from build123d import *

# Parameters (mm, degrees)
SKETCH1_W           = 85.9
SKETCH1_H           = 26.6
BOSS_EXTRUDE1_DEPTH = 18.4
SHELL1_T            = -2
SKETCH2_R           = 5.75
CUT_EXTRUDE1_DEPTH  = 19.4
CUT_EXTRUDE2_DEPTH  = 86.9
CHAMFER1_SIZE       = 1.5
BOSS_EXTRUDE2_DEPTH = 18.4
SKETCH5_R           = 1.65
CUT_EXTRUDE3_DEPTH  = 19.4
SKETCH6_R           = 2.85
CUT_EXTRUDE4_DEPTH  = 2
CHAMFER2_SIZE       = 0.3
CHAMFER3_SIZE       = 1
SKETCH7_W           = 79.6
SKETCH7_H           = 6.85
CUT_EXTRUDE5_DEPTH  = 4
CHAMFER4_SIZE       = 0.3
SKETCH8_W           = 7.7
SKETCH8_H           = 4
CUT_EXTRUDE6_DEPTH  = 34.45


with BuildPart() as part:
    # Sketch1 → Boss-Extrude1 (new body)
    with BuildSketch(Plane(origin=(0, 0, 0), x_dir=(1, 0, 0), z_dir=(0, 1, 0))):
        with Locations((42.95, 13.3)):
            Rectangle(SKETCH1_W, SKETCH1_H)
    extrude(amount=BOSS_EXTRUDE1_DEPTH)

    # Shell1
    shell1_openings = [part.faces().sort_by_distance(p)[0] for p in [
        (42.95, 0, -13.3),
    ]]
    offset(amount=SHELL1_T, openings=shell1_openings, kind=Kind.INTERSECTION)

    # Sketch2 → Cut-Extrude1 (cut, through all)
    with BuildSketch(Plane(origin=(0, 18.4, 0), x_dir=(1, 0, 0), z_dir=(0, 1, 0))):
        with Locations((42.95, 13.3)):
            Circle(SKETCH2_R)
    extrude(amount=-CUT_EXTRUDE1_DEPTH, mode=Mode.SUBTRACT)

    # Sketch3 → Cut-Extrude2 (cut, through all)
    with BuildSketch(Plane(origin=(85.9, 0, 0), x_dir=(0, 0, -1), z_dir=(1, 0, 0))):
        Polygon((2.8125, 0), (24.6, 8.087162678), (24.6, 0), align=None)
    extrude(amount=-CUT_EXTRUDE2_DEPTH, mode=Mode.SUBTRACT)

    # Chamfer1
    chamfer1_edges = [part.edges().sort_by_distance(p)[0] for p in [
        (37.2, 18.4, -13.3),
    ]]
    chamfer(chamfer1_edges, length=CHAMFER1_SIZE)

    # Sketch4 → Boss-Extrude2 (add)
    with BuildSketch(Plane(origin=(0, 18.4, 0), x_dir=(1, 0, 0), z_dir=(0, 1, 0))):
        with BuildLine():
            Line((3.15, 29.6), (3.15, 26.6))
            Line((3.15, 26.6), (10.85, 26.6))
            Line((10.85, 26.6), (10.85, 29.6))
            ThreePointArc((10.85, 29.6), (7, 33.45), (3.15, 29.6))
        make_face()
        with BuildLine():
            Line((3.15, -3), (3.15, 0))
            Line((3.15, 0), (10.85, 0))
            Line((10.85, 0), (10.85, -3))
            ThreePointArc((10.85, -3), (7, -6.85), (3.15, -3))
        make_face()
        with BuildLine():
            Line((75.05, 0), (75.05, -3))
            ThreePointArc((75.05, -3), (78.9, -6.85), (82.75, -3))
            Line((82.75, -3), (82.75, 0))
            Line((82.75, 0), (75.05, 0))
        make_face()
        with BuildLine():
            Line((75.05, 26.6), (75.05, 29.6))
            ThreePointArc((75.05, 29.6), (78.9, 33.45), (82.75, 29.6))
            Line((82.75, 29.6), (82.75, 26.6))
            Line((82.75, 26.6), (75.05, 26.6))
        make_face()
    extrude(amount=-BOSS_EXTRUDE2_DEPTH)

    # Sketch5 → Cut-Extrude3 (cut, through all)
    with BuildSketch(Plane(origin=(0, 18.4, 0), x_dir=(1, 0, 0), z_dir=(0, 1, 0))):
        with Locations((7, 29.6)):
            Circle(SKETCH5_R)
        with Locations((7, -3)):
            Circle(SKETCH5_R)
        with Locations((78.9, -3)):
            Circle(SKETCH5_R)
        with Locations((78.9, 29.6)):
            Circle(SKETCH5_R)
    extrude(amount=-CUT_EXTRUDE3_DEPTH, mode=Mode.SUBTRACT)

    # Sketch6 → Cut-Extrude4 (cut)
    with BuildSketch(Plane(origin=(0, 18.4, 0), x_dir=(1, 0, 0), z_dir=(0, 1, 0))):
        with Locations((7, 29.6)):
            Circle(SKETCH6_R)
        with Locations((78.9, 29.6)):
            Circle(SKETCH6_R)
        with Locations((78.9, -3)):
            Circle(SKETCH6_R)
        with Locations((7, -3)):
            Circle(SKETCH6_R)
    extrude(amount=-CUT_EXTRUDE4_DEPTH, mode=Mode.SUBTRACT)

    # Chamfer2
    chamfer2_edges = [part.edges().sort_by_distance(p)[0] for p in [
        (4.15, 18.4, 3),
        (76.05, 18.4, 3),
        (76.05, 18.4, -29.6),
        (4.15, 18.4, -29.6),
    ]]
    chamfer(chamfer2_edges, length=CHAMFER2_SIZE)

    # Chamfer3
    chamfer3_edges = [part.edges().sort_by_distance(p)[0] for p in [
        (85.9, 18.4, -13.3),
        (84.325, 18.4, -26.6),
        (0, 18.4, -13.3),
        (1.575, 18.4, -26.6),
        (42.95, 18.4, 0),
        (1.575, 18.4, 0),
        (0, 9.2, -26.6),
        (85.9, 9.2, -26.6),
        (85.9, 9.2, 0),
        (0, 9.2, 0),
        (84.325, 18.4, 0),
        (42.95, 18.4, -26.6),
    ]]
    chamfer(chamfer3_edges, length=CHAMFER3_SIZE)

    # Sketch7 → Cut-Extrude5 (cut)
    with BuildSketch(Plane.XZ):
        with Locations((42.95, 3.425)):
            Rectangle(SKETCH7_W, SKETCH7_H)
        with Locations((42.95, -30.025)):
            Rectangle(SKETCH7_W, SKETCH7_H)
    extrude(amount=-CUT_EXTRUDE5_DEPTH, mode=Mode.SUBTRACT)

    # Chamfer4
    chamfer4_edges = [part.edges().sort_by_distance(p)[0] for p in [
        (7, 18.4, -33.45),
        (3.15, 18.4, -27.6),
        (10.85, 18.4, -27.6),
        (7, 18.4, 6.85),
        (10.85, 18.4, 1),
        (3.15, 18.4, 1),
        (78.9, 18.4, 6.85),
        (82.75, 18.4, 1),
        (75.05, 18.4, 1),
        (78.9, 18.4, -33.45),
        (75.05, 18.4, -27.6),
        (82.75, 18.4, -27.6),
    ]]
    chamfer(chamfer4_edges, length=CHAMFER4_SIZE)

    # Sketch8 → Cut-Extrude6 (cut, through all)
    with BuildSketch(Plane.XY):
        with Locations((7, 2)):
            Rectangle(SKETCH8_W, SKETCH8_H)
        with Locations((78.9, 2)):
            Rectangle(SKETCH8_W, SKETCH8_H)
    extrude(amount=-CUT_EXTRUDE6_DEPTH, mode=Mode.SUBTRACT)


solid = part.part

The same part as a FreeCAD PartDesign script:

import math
import FreeCAD as App
import Part
import Sketcher
from FreeCAD import Vector


def edges_at(feature, points):
    """Names of the edges that pass closest to the given points."""
    edges = feature.Shape.Edges
    near = lambda p: min(range(len(edges)), key=lambda i: edges[i].distToShape(Part.Vertex(*p))[0])
    return sorted({f"Edge{near(p) + 1}" for p in points})


def faces_at(feature, points):
    """Names of the faces that lie closest to the given points."""
    faces = feature.Shape.Faces
    near = lambda p: min(range(len(faces)), key=lambda i: faces[i].distToShape(Part.Vertex(*p))[0])
    return sorted({f"Face{near(p) + 1}" for p in points})


def add_polygon(sketch, points):
    """Adds a closed chain of lines whose ends are joined by coincident constraints."""
    first, n = sketch.GeometryCount, len(points)
    for a, b in zip(points, points[1:] + points[:1]):
        sketch.addGeometry(Part.LineSegment(App.Vector(*a, 0), App.Vector(*b, 0)), False)
    for i in range(n):
        sketch.addConstraint(Sketcher.Constraint("Coincident", first + i, 2, first + (i + 1) % n, 1))

doc = App.newDocument("Part")
body = doc.addObject("PartDesign::Body", "Body")

sketch1 = body.newObject("Sketcher::SketchObject", "Sketch")
sketch1.AttachmentSupport = (doc.getObject("XZ_Plane"), [""])
sketch1.MapMode = "FlatFace"
add_polygon(sketch1, [(0, -27), (0, 0), (86, 0), (86, -27)])
sketch1.addConstraint(Sketcher.Constraint("Vertical", 0))
sketch1.addConstraint(Sketcher.Constraint("Horizontal", 1))
sketch1.addConstraint(Sketcher.Constraint("Vertical", 2))
sketch1.addConstraint(Sketcher.Constraint("Horizontal", 3))
sketch1.addConstraint(Sketcher.Constraint("Coincident", 0, 2, -1, 1))
sketch1.addConstraint(Sketcher.Constraint("DistanceX", 1, 1, 1, 2, 85.9))
sketch1.addConstraint(Sketcher.Constraint("DistanceY", 0, 1, 0, 2, 26.6))
pad1 = body.newObject("PartDesign::Pad", "Pad")
pad1.Profile = sketch1
pad1.Length = 18.4
pad1.Reversed = True
doc.recompute()

thickness = body.newObject("PartDesign::Thickness", "Thickness")
thickness.Base = (pad1, faces_at(pad1, [(42.95, 0, -13.3)]))
thickness.Value = 2
thickness.Reversed = True
thickness.Join = "Intersection"

sketch2 = body.newObject("Sketcher::SketchObject", "Sketch001")
sketch2.AttachmentSupport = (doc.getObject("XZ_Plane"), [""])
sketch2.MapMode = "FlatFace"
sketch2.AttachmentOffset = App.Placement(Vector(0, 0, -18.4), App.Rotation())
sketch2.addGeometry(Part.Circle(Vector(43, -13, 0), Vector(0, 0, 1), 6), False)
sketch2.addConstraint(Sketcher.Constraint("Diameter", 0, 11.5))
sketch2.addConstraint(Sketcher.Constraint("DistanceY", 0, 3, -1, 1, 13.3))
sketch2.addConstraint(Sketcher.Constraint("DistanceX", -1, 1, 0, 3, 42.95))
pocket1 = body.newObject("PartDesign::Pocket", "Pocket")
pocket1.Profile = sketch2
pocket1.Type = "ThroughAll"
pocket1.Reversed = True

sketch3 = body.newObject("Sketcher::SketchObject", "Sketch002")
sketch3.AttachmentSupport = (doc.getObject("YZ_Plane"), [""])
sketch3.MapMode = "FlatFace"
sketch3.AttachmentOffset = App.Placement(Vector(0, 0, 85.9), App.Rotation())
add_polygon(sketch3, [(8, -25), (0, -3), (0, -25)])
sketch3.addConstraint(Sketcher.Constraint("Vertical", 1))
sketch3.addConstraint(Sketcher.Constraint("Horizontal", 2))
sketch3.addConstraint(Sketcher.Constraint("PointOnObject", 0, 2, -2))
sketch3.addConstraint(Sketcher.Constraint("DistanceY", 1, 2, -1, 1, 24.6))
sketch3.addConstraint(Sketcher.Constraint("DistanceY", 1, 2, 1, 1, 21.7875))
sketch3.addConstraint(Sketcher.Constraint("DistanceX", 2, 1, 2, 2, 8.087163))
pocket2 = body.newObject("PartDesign::Pocket", "Pocket001")
pocket2.Profile = sketch3
pocket2.Type = "ThroughAll"
doc.recompute()

chamfer = body.newObject("PartDesign::Chamfer", "Chamfer")
chamfer.Base = (pocket2, edges_at(pocket2, [(37.2, 18.4, -13.3)]))
chamfer.Size = 1.5

sketch4 = body.newObject("Sketcher::SketchObject", "Sketch003")
sketch4.AttachmentSupport = (doc.getObject("XZ_Plane"), [""])
sketch4.MapMode = "FlatFace"
sketch4.AttachmentOffset = App.Placement(Vector(0, 0, -18.4), App.Rotation())
sketch4.addGeometry(Part.LineSegment(Vector(3.1, -29.6, 0), Vector(3.1, -26.6, 0)), False)
sketch4.addGeometry(Part.LineSegment(Vector(3.1, -26.6, 0), Vector(10.8, -26.6, 0)), False)
sketch4.addGeometry(Part.LineSegment(Vector(10.8, -26.6, 0), Vector(10.8, -29.6, 0)), False)
sketch4.addGeometry(Part.ArcOfCircle(Part.Circle(Vector(7, -29.6, 0), Vector(0, 0, 1), 3.9), math.radians(180), math.radians(360)), False)
sketch4.addGeometry(Part.LineSegment(Vector(3.1, 0, 0), Vector(3.1, 3, 0)), False)
sketch4.addGeometry(Part.ArcOfCircle(Part.Circle(Vector(7, 3, 0), Vector(0, 0, 1), 3.9), math.radians(0), math.radians(180)), False)
sketch4.addGeometry(Part.LineSegment(Vector(10.8, 3, 0), Vector(10.8, 0, 0)), False)
sketch4.addGeometry(Part.LineSegment(Vector(10.8, 0, 0), Vector(3.1, 0, 0)), False)
sketch4.addGeometry(Part.LineSegment(Vector(75, 0, 0), Vector(75, 3, 0)), False)
sketch4.addGeometry(Part.ArcOfCircle(Part.Circle(Vector(78.9, 3, 0), Vector(0, 0, 1), 3.9), math.radians(0), math.radians(180)), False)
sketch4.addGeometry(Part.LineSegment(Vector(82.8, 3, 0), Vector(82.8, 0, 0)), False)
sketch4.addGeometry(Part.LineSegment(Vector(82.8, 0, 0), Vector(75, 0, 0)), False)
sketch4.addGeometry(Part.LineSegment(Vector(75, -29.6, 0), Vector(75, -26.6, 0)), False)
sketch4.addGeometry(Part.LineSegment(Vector(75, -26.6, 0), Vector(82.8, -26.6, 0)), False)
sketch4.addGeometry(Part.LineSegment(Vector(82.8, -26.6, 0), Vector(82.8, -29.6, 0)), False)
sketch4.addGeometry(Part.ArcOfCircle(Part.Circle(Vector(78.9, -29.6, 0), Vector(0, 0, 1), 3.9), math.radians(180), math.radians(360)), False)
sketch4.addConstraint(Sketcher.Constraint("Coincident", 0, 2, 1, 1))
sketch4.addConstraint(Sketcher.Constraint("Coincident", 1, 2, 2, 1))
sketch4.addConstraint(Sketcher.Constraint("Tangent", 2, 2, 3, 2))
sketch4.addConstraint(Sketcher.Constraint("Tangent", 3, 1, 0, 1))
sketch4.addConstraint(Sketcher.Constraint("Tangent", 4, 2, 5, 2))
sketch4.addConstraint(Sketcher.Constraint("Tangent", 5, 1, 6, 1))
sketch4.addConstraint(Sketcher.Constraint("Coincident", 6, 2, 7, 1))
sketch4.addConstraint(Sketcher.Constraint("Coincident", 7, 2, 4, 1))
sketch4.addConstraint(Sketcher.Constraint("Tangent", 8, 2, 9, 2))
sketch4.addConstraint(Sketcher.Constraint("Tangent", 9, 1, 10, 1))
sketch4.addConstraint(Sketcher.Constraint("Coincident", 10, 2, 11, 1))
sketch4.addConstraint(Sketcher.Constraint("Coincident", 11, 2, 8, 1))
sketch4.addConstraint(Sketcher.Constraint("Coincident", 12, 2, 13, 1))
sketch4.addConstraint(Sketcher.Constraint("Coincident", 13, 2, 14, 1))
sketch4.addConstraint(Sketcher.Constraint("Tangent", 14, 2, 15, 2))
sketch4.addConstraint(Sketcher.Constraint("Tangent", 15, 1, 12, 1))
sketch4.addConstraint(Sketcher.Constraint("Vertical", 0))
sketch4.addConstraint(Sketcher.Constraint("Horizontal", 1))
sketch4.addConstraint(Sketcher.Constraint("Vertical", 2))
sketch4.addConstraint(Sketcher.Constraint("Vertical", 4))
sketch4.addConstraint(Sketcher.Constraint("Vertical", 6))
sketch4.addConstraint(Sketcher.Constraint("Horizontal", 7))
sketch4.addConstraint(Sketcher.Constraint("Vertical", 8))
sketch4.addConstraint(Sketcher.Constraint("Vertical", 10))
sketch4.addConstraint(Sketcher.Constraint("Horizontal", 11))
sketch4.addConstraint(Sketcher.Constraint("Vertical", 12))
sketch4.addConstraint(Sketcher.Constraint("Horizontal", 13))
sketch4.addConstraint(Sketcher.Constraint("Vertical", 14))
sketch4.addConstraint(Sketcher.Constraint("Equal", 3, 5))
sketch4.addConstraint(Sketcher.Constraint("Equal", 5, 9))
sketch4.addConstraint(Sketcher.Constraint("Equal", 9, 15))
sketch4.addConstraint(Sketcher.Constraint("PointOnObject", 6, 2, -1))
sketch4.addConstraint(Sketcher.Constraint("PointOnObject", 10, 2, -1))
sketch4.addConstraint(Sketcher.Constraint("Horizontal", 5, 3, 9, 3))
sketch4.addConstraint(Sketcher.Constraint("Horizontal", 3, 3, 15, 3))
sketch4.addConstraint(Sketcher.Constraint("Horizontal", 1, 2, 12, 2))
sketch4.addConstraint(Sketcher.Constraint("Vertical", 3, 3, 5, 3))
sketch4.addConstraint(Sketcher.Constraint("Vertical", 9, 3, 15, 3))
sketch4.addConstraint(Sketcher.Constraint("Equal", 2, 4))
sketch4.addConstraint(Sketcher.Constraint("DistanceY", 0, 1, 0, 2, 3.0))
sketch4.addConstraint(Sketcher.Constraint("Radius", 3, 3.85))
sketch4.addConstraint(Sketcher.Constraint("DistanceX", -1, 1, 3, 3, 7.0))
sketch4.addConstraint(Sketcher.Constraint("DistanceY", 3, 3, -1, 1, 29.6))
sketch4.addConstraint(Sketcher.Constraint("DistanceX", -1, 1, 9, 3, 78.9))
pad2 = body.newObject("PartDesign::Pad", "Pad001")
pad2.Profile = sketch4
pad2.Length = 18.4

sketch5 = body.newObject("Sketcher::SketchObject", "Sketch004")
sketch5.AttachmentSupport = (doc.getObject("XZ_Plane"), [""])
sketch5.MapMode = "FlatFace"
sketch5.AttachmentOffset = App.Placement(Vector(0, 0, -18.4), App.Rotation())
sketch5.addGeometry(Part.Circle(Vector(7, -29.6, 0), Vector(0, 0, 1), 1.6), False)
sketch5.addGeometry(Part.Circle(Vector(7, 3, 0), Vector(0, 0, 1), 1.6), False)
sketch5.addGeometry(Part.Circle(Vector(78.9, 3, 0), Vector(0, 0, 1), 1.6), False)
sketch5.addGeometry(Part.Circle(Vector(78.9, -29.6, 0), Vector(0, 0, 1), 1.6), False)
sketch5.addConstraint(Sketcher.Constraint("Equal", 0, 1))
sketch5.addConstraint(Sketcher.Constraint("Equal", 1, 2))
sketch5.addConstraint(Sketcher.Constraint("Equal", 2, 3))
sketch5.addConstraint(Sketcher.Constraint("Horizontal", 1, 3, 2, 3))
sketch5.addConstraint(Sketcher.Constraint("Horizontal", 0, 3, 3, 3))
sketch5.addConstraint(Sketcher.Constraint("Vertical", 0, 3, 1, 3))
sketch5.addConstraint(Sketcher.Constraint("Vertical", 2, 3, 3, 3))
sketch5.addConstraint(Sketcher.Constraint("Diameter", 0, 3.3))
sketch5.addConstraint(Sketcher.Constraint("DistanceX", -1, 1, 0, 3, 7.0))
sketch5.addConstraint(Sketcher.Constraint("DistanceY", -1, 1, 1, 3, 3.0))
sketch5.addConstraint(Sketcher.Constraint("DistanceY", 0, 3, -1, 1, 29.6))
sketch5.addConstraint(Sketcher.Constraint("DistanceX", -1, 1, 2, 3, 78.9))
pocket3 = body.newObject("PartDesign::Pocket", "Pocket002")
pocket3.Profile = sketch5
pocket3.Type = "ThroughAll"
pocket3.Reversed = True

sketch6 = body.newObject("Sketcher::SketchObject", "Sketch005")
sketch6.AttachmentSupport = (doc.getObject("XZ_Plane"), [""])
sketch6.MapMode = "FlatFace"
sketch6.AttachmentOffset = App.Placement(Vector(0, 0, -18.4), App.Rotation())
sketch6.addGeometry(Part.Circle(Vector(7, -29.6, 0), Vector(0, 0, 1), 2.9), False)
sketch6.addGeometry(Part.Circle(Vector(78.9, -29.6, 0), Vector(0, 0, 1), 2.9), False)
sketch6.addGeometry(Part.Circle(Vector(78.9, 3, 0), Vector(0, 0, 1), 2.9), False)
sketch6.addGeometry(Part.Circle(Vector(7, 3, 0), Vector(0, 0, 1), 2.9), False)
sketch6.addConstraint(Sketcher.Constraint("Equal", 0, 1))
sketch6.addConstraint(Sketcher.Constraint("Equal", 1, 2))
sketch6.addConstraint(Sketcher.Constraint("Equal", 2, 3))
sketch6.addConstraint(Sketcher.Constraint("Horizontal", 0, 3, 1, 3))
sketch6.addConstraint(Sketcher.Constraint("Horizontal", 2, 3, 3, 3))
sketch6.addConstraint(Sketcher.Constraint("Vertical", 1, 3, 2, 3))
sketch6.addConstraint(Sketcher.Constraint("Vertical", 0, 3, 3, 3))
sketch6.addConstraint(Sketcher.Constraint("Diameter", 0, 5.7))
sketch6.addConstraint(Sketcher.Constraint("DistanceX", -1, 1, 0, 3, 7.0))
sketch6.addConstraint(Sketcher.Constraint("DistanceY", -1, 1, 2, 3, 3.0))
sketch6.addConstraint(Sketcher.Constraint("DistanceY", 0, 3, -1, 1, 29.6))
sketch6.addConstraint(Sketcher.Constraint("DistanceX", -1, 1, 1, 3, 78.9))
pocket4 = body.newObject("PartDesign::Pocket", "Pocket003")
pocket4.Profile = sketch6
pocket4.Length = 2
pocket4.Reversed = True
doc.recompute()

chamfer2 = body.newObject("PartDesign::Chamfer", "Chamfer001")
chamfer2.Base = (pocket4, edges_at(pocket4, [
    (4.15, 18.4, 3),
    (76.05, 18.4, 3),
    (76.05, 18.4, -29.6),
    (4.15, 18.4, -29.6),
]))
chamfer2.Size = 0.3
doc.recompute()

chamfer3 = body.newObject("PartDesign::Chamfer", "Chamfer002")
chamfer3.Base = (chamfer2, edges_at(chamfer2, [
    (85.9, 18.4, -13.3),
    (84.325, 18.4, -26.6),
    (0, 18.4, -13.3),
    (1.575, 18.4, -26.6),
    (42.95, 18.4, 0),
    (1.575, 18.4, 0),
    (0, 9.2, -26.6),
    (85.9, 9.2, -26.6),
    (85.9, 9.2, 0),
    (0, 9.2, 0),
    (84.325, 18.4, 0),
    (42.95, 18.4, -26.6),
]))
chamfer3.Size = 1

sketch7 = body.newObject("Sketcher::SketchObject", "Sketch006")
sketch7.AttachmentSupport = (doc.getObject("XZ_Plane"), [""])
sketch7.MapMode = "FlatFace"
add_polygon(sketch7, [(3, 7), (3, 0), (83, 0), (83, 7)])
add_polygon(sketch7, [(3, -27), (3, -33), (83, -33), (83, -27)])
sketch7.addConstraint(Sketcher.Constraint("Vertical", 0))
sketch7.addConstraint(Sketcher.Constraint("Horizontal", 1))
sketch7.addConstraint(Sketcher.Constraint("Vertical", 2))
sketch7.addConstraint(Sketcher.Constraint("Horizontal", 3))
sketch7.addConstraint(Sketcher.Constraint("Vertical", 4))
sketch7.addConstraint(Sketcher.Constraint("Horizontal", 5))
sketch7.addConstraint(Sketcher.Constraint("Vertical", 6))
sketch7.addConstraint(Sketcher.Constraint("Horizontal", 7))
sketch7.addConstraint(Sketcher.Constraint("PointOnObject", 0, 2, -1))
sketch7.addConstraint(Sketcher.Constraint("Vertical", 3, 2, 4, 2))
sketch7.addConstraint(Sketcher.Constraint("Vertical", 2, 2, 5, 2))
sketch7.addConstraint(Sketcher.Constraint("Equal", 2, 4))
sketch7.addConstraint(Sketcher.Constraint("DistanceX", 1, 1, 1, 2, 79.6))
sketch7.addConstraint(Sketcher.Constraint("DistanceY", 0, 2, 0, 1, 6.85))
sketch7.addConstraint(Sketcher.Constraint("DistanceY", 6, 2, -1, 1, 26.6))
sketch7.addConstraint(Sketcher.Constraint("DistanceX", -1, 1, 0, 2, 3.15))
pocket5 = body.newObject("PartDesign::Pocket", "Pocket004")
pocket5.Profile = sketch7
pocket5.Length = 4
doc.recompute()

chamfer4 = body.newObject("PartDesign::Chamfer", "Chamfer003")
chamfer4.Base = (pocket5, edges_at(pocket5, [
    (7, 18.4, -33.45),
    (3.15, 18.4, -27.6),
    (10.85, 18.4, -27.6),
    (7, 18.4, 6.85),
    (10.85, 18.4, 1),
    (3.15, 18.4, 1),
    (78.9, 18.4, 6.85),
    (82.75, 18.4, 1),
    (75.05, 18.4, 1),
    (78.9, 18.4, -33.45),
    (75.05, 18.4, -27.6),
    (82.75, 18.4, -27.6),
]))
chamfer4.Size = 0.3

sketch8 = body.newObject("Sketcher::SketchObject", "Sketch007")
sketch8.AttachmentSupport = (doc.getObject("XY_Plane"), [""])
sketch8.MapMode = "FlatFace"
add_polygon(sketch8, [(3.1, 4), (3.1, 0), (10.8, 0), (10.8, 4)])
add_polygon(sketch8, [(75, 4), (75, 0), (82.8, 0), (82.8, 4)])
sketch8.addConstraint(Sketcher.Constraint("Vertical", 0))
sketch8.addConstraint(Sketcher.Constraint("Horizontal", 1))
sketch8.addConstraint(Sketcher.Constraint("Vertical", 2))
sketch8.addConstraint(Sketcher.Constraint("Horizontal", 3))
sketch8.addConstraint(Sketcher.Constraint("Vertical", 4))
sketch8.addConstraint(Sketcher.Constraint("Horizontal", 5))
sketch8.addConstraint(Sketcher.Constraint("Vertical", 6))
sketch8.addConstraint(Sketcher.Constraint("Horizontal", 7))
sketch8.addConstraint(Sketcher.Constraint("PointOnObject", 0, 2, -1))
sketch8.addConstraint(Sketcher.Constraint("PointOnObject", 4, 2, -1))
sketch8.addConstraint(Sketcher.Constraint("Horizontal", 3, 2, 6, 2))
sketch8.addConstraint(Sketcher.Constraint("Equal", 3, 5))
sketch8.addConstraint(Sketcher.Constraint("DistanceY", 0, 2, 0, 1, 4.0))
sketch8.addConstraint(Sketcher.Constraint("DistanceX", 1, 1, 1, 2, 7.7))
sketch8.addConstraint(Sketcher.Constraint("DistanceX", 1, 2, 4, 2, 64.2))
sketch8.addConstraint(Sketcher.Constraint("DistanceX", -1, 1, 0, 2, 3.15))
pocket6 = body.newObject("PartDesign::Pocket", "Pocket005")
pocket6.Profile = sketch8
pocket6.Type = "ThroughAll"

doc.recompute()
